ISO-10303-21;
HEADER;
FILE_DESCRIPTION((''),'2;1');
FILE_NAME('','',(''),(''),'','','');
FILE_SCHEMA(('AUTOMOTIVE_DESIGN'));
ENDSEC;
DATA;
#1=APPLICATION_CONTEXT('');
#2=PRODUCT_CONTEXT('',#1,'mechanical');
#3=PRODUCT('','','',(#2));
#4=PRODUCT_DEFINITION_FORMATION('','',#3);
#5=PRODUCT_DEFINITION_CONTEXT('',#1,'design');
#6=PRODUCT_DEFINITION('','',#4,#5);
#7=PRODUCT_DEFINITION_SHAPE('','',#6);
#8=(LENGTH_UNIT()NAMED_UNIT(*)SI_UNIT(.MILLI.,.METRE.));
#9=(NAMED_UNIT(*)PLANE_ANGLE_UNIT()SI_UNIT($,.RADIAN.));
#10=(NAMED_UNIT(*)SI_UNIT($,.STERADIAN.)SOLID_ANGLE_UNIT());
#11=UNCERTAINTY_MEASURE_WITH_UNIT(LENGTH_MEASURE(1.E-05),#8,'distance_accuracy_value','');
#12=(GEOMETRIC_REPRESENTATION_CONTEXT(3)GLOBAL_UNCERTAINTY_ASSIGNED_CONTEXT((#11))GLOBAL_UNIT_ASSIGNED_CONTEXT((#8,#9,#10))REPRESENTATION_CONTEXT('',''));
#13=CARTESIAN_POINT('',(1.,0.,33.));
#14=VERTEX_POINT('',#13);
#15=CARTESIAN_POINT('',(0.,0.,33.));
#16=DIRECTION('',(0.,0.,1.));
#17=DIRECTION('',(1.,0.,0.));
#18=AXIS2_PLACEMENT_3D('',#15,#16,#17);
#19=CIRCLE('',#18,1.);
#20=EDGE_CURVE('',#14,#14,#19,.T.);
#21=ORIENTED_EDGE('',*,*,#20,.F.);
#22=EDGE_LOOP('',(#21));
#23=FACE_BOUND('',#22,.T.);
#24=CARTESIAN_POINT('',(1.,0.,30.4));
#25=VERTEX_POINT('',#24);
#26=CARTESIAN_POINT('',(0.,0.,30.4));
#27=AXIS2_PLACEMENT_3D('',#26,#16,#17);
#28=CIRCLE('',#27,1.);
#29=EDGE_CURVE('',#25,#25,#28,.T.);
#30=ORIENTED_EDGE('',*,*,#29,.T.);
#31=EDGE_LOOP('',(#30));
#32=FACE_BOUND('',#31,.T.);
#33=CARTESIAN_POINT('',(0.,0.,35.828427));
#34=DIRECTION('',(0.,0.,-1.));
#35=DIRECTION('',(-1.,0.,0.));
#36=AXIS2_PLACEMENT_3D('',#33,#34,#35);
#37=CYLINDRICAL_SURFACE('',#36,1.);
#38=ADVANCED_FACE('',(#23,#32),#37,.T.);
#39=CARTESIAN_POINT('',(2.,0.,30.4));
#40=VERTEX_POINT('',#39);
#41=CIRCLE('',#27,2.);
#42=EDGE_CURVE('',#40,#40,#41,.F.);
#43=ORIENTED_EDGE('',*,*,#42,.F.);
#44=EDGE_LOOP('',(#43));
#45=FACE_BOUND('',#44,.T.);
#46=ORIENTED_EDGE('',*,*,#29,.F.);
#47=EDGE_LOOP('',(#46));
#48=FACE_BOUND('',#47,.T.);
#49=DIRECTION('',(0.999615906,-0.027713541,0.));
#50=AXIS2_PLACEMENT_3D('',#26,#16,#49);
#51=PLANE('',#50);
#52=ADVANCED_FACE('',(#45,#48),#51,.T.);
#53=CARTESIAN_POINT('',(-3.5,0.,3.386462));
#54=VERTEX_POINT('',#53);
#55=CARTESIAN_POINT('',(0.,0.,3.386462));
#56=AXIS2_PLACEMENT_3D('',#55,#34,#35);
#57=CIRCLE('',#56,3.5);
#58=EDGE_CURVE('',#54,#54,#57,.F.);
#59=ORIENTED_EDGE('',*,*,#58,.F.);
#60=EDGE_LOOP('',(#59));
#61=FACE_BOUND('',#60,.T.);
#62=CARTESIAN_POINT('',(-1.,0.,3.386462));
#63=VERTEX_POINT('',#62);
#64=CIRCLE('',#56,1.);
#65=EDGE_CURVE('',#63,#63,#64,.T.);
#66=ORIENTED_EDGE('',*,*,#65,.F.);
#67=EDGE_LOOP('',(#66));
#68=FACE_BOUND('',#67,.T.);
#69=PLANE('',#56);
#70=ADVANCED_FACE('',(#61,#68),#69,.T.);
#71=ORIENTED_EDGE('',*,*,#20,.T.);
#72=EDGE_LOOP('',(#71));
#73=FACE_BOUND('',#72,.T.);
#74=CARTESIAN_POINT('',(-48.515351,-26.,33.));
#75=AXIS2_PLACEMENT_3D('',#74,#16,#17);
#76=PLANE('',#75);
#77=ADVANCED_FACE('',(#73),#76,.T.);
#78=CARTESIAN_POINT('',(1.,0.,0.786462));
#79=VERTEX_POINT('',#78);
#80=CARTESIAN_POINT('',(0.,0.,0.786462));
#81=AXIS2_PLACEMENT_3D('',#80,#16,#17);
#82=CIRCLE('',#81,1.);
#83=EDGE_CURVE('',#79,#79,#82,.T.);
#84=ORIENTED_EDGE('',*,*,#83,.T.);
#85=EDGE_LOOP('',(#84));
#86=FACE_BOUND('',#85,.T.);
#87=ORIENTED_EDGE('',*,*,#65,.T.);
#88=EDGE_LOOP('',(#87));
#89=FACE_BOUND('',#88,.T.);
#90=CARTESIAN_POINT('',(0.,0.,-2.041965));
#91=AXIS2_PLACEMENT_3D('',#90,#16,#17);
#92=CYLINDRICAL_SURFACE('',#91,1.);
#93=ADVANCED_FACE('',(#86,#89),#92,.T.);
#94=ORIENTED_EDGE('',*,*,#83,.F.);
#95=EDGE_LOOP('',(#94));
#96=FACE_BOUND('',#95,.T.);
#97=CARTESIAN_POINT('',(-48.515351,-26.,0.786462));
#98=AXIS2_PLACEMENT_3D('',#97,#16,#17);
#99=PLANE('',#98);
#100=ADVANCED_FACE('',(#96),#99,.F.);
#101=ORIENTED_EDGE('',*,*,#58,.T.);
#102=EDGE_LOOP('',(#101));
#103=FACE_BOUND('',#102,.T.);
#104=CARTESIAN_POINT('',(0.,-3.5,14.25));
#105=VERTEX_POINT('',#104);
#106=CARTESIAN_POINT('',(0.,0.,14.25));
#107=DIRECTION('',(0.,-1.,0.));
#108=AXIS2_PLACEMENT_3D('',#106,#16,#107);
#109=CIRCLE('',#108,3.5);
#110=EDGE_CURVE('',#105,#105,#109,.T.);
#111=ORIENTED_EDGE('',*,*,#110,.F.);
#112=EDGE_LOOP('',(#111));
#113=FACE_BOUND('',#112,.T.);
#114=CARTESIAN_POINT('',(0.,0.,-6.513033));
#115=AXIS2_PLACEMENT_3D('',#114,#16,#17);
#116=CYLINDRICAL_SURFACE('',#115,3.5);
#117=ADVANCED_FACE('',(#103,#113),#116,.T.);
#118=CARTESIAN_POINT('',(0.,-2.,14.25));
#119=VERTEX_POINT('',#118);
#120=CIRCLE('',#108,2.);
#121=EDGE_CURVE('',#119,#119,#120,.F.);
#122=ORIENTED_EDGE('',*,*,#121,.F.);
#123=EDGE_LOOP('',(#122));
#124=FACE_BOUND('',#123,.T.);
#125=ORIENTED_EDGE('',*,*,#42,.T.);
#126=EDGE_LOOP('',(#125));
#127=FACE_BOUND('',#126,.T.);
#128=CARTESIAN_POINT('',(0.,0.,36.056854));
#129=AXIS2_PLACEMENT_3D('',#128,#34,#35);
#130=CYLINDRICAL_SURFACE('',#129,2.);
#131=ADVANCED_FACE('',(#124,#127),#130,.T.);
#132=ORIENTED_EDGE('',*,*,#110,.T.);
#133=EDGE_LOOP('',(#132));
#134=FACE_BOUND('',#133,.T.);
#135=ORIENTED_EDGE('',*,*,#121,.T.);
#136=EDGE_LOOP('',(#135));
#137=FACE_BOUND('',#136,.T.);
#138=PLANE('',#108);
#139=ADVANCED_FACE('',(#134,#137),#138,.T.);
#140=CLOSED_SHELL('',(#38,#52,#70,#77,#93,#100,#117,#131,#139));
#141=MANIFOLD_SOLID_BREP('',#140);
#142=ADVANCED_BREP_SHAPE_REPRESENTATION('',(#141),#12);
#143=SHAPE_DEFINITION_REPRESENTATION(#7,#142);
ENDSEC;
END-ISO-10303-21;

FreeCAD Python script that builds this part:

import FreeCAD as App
import Part
import Sketcher

doc = App.newDocument("Part")
params = doc.addObject("Spreadsheet::Sheet", "Params")
for row, (alias, value) in enumerate([
    ("sketch1_diameter", "4 mm"),
    ("pad1_length", "27.013538 mm"),
    ("sketch2_diameter", "2 mm"),
    ("pad2_length", "2.6 mm"),
    ("sketch3_diameter", "2 mm"),
    ("pad3_length", "2.6 mm"),
    ("sketch4_diameter", "7 mm"),
    ("pad4_length", "10.863538 mm"),
], start=1):
    params.set(f"A{row}", alias)
    params.set(f"B{row}", "=" + value)
    params.setAlias(f"B{row}", alias)

body = doc.addObject("PartDesign::Body", "Body")

# Sketch on XY plane
sketch1 = doc.addObject("Sketcher::SketchObject", "Sketch")
body.addObject(sketch1)
sketch1.AttachmentSupport = (doc.XY_Plane, [""])
sketch1.MapMode = "FlatFace"
sketch1.AttachmentOffset = App.Placement(App.Vector(0, 0, 3.386462), App.Rotation())
sketch1.addGeometry(Part.Circle(App.Vector(0, 0, 0), App.Vector(0, 0, 1), 2), False)
sketch1.addConstraint([
    Sketcher.Constraint("Coincident", 0, 3, -1, 1),
    Sketcher.Constraint("Diameter", 0, 4.0),
])
sketch1.setExpression("Constraints[1]", "Params.sketch1_diameter")
pad1 = doc.addObject("PartDesign::Pad", "Pad")
body.addObject(pad1)
pad1.Profile = sketch1
pad1.setExpression("Length", "Params.pad1_length")

# Sketch on XY plane
sketch2 = doc.addObject("Sketcher::SketchObject", "Sketch001")
body.addObject(sketch2)
sketch2.AttachmentSupport = (doc.XY_Plane, [""])
sketch2.MapMode = "FlatFace"
sketch2.AttachmentOffset = App.Placement(App.Vector(0, 0, 30.4), App.Rotation())
sketch2.addGeometry(Part.Circle(App.Vector(0, 0, 0), App.Vector(0, 0, 1), 1), False)
sketch2.addConstraint([
    Sketcher.Constraint("Coincident", 0, 3, -1, 1),
    Sketcher.Constraint("Diameter", 0, 2.0),
])
sketch2.setExpression("Constraints[1]", "Params.sketch2_diameter")
pad2 = doc.addObject("PartDesign::Pad", "Pad001")
body.addObject(pad2)
pad2.Profile = sketch2
pad2.setExpression("Length", "Params.pad2_length")

# Sketch on XY plane
sketch3 = doc.addObject("Sketcher::SketchObject", "Sketch002")
body.addObject(sketch3)
sketch3.AttachmentSupport = (doc.XY_Plane, [""])
sketch3.MapMode = "FlatFace"
sketch3.AttachmentOffset = App.Placement(App.Vector(0, 0, 3.386462), App.Rotation())
sketch3.addGeometry(Part.Circle(App.Vector(0, 0, 0), App.Vector(0, 0, 1), 1), False)
sketch3.addConstraint([
    Sketcher.Constraint("Coincident", 0, 3, -1, 1),
    Sketcher.Constraint("Diameter", 0, 2.0),
])
sketch3.setExpression("Constraints[1]", "Params.sketch3_diameter")
pad3 = doc.addObject("PartDesign::Pad", "Pad002")
body.addObject(pad3)
pad3.Profile = sketch3
pad3.setExpression("Length", "Params.pad3_length")
pad3.Reversed = True

# Sketch on XY plane
sketch4 = doc.addObject("Sketcher::SketchObject", "Sketch003")
body.addObject(sketch4)
sketch4.AttachmentSupport = (doc.XY_Plane, [""])
sketch4.MapMode = "FlatFace"
sketch4.AttachmentOffset = App.Placement(App.Vector(0, 0, 14.25), App.Rotation())
sketch4.addGeometry(Part.Circle(App.Vector(0, 0, 0), App.Vector(0, 0, 1), 3.5), False)
sketch4.addConstraint([
    Sketcher.Constraint("Coincident", 0, 3, -1, 1),
    Sketcher.Constraint("Diameter", 0, 7.0),
])
sketch4.setExpression("Constraints[1]", "Params.sketch4_diameter")
pad4 = doc.addObject("PartDesign::Pad", "Pad003")
body.addObject(pad4)
pad4.Profile = sketch4
pad4.setExpression("Length", "Params.pad4_length")
pad4.Reversed = True

doc.recompute()
